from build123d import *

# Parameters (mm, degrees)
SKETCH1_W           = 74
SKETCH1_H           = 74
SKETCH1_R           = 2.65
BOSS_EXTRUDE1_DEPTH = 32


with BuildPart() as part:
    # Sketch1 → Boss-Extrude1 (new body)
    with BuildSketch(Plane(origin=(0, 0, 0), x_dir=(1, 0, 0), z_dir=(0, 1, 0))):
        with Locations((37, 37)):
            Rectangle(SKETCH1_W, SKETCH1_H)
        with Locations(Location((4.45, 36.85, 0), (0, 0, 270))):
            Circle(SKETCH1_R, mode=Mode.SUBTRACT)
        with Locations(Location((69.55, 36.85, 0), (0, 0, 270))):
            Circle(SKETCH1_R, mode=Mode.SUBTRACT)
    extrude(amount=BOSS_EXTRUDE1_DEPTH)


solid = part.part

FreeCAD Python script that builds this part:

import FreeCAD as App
import Part
import Sketcher
from FreeCAD import Vector

doc = App.newDocument("Part")
body = doc.addObject("PartDesign::Body", "Body")

# Sketch on XZ plane
sketch1 = body.newObject("Sketcher::SketchObject", "Sketch")
sketch1.AttachmentSupport = (doc.getObject("XZ_Plane"), [""])
sketch1.MapMode = "FlatFace"
sketch1.addGeometry(Part.LineSegment(Vector(0, -74, 0), Vector(0, 0, 0)), False)
sketch1.addGeometry(Part.LineSegment(Vector(0, 0, 0), Vector(74, 0, 0)), False)
sketch1.addGeometry(Part.LineSegment(Vector(74, 0, 0), Vector(74, -74, 0)), False)
sketch1.addGeometry(Part.LineSegment(Vector(74, -74, 0), Vector(0, -74, 0)), False)
sketch1.addGeometry(Part.Circle(Vector(4.45, -36.85, 0), Vector(0, 0, 1), 2.65), False)
sketch1.addGeometry(Part.Circle(Vector(69.55, -36.85, 0), Vector(0, 0, 1), 2.65), False)
sketch1.addConstraint(Sketcher.Constraint("Coincident", 0, 2, 1, 1))
sketch1.addConstraint(Sketcher.Constraint("Coincident", 1, 2, 2, 1))
sketch1.addConstraint(Sketcher.Constraint("Coincident", 2, 2, 3, 1))
sketch1.addConstraint(Sketcher.Constraint("Coincident", 3, 2, 0, 1))
sketch1.addConstraint(Sketcher.Constraint("Vertical", 0))
sketch1.addConstraint(Sketcher.Constraint("Horizontal", 1))
sketch1.addConstraint(Sketcher.Constraint("Vertical", 2))
sketch1.addConstraint(Sketcher.Constraint("Horizontal", 3))
sketch1.addConstraint(Sketcher.Constraint("Coincident", 0, 2, -1, 1))
sketch1.addConstraint(Sketcher.Constraint("Equal", 4, 5))
sketch1.addConstraint(Sketcher.Constraint("Horizontal", 4, 3, 5, 3))
sketch1.addConstraint(Sketcher.Constraint("Equal", 3, 0))
sketch1.addConstraint(Sketcher.Constraint("Diameter", 4, 5.3))
sketch1.addConstraint(Sketcher.Constraint("DistanceX", 1, 1, 1, 2, 74.0))
sketch1.addConstraint(Sketcher.Constraint("DistanceX", 4, 3, 5, 3, 65.1))
sketch1.addConstraint(Sketcher.Constraint("DistanceX", -1, 1, 4, 3, 4.45))
sketch1.addConstraint(Sketcher.Constraint("DistanceY", 4, 3, -1, 1, 36.85))
pad1 = body.newObject("PartDesign::Pad", "Pad")
pad1.Profile = sketch1
pad1.Length = 32
pad1.Reversed = True

doc.recompute()
